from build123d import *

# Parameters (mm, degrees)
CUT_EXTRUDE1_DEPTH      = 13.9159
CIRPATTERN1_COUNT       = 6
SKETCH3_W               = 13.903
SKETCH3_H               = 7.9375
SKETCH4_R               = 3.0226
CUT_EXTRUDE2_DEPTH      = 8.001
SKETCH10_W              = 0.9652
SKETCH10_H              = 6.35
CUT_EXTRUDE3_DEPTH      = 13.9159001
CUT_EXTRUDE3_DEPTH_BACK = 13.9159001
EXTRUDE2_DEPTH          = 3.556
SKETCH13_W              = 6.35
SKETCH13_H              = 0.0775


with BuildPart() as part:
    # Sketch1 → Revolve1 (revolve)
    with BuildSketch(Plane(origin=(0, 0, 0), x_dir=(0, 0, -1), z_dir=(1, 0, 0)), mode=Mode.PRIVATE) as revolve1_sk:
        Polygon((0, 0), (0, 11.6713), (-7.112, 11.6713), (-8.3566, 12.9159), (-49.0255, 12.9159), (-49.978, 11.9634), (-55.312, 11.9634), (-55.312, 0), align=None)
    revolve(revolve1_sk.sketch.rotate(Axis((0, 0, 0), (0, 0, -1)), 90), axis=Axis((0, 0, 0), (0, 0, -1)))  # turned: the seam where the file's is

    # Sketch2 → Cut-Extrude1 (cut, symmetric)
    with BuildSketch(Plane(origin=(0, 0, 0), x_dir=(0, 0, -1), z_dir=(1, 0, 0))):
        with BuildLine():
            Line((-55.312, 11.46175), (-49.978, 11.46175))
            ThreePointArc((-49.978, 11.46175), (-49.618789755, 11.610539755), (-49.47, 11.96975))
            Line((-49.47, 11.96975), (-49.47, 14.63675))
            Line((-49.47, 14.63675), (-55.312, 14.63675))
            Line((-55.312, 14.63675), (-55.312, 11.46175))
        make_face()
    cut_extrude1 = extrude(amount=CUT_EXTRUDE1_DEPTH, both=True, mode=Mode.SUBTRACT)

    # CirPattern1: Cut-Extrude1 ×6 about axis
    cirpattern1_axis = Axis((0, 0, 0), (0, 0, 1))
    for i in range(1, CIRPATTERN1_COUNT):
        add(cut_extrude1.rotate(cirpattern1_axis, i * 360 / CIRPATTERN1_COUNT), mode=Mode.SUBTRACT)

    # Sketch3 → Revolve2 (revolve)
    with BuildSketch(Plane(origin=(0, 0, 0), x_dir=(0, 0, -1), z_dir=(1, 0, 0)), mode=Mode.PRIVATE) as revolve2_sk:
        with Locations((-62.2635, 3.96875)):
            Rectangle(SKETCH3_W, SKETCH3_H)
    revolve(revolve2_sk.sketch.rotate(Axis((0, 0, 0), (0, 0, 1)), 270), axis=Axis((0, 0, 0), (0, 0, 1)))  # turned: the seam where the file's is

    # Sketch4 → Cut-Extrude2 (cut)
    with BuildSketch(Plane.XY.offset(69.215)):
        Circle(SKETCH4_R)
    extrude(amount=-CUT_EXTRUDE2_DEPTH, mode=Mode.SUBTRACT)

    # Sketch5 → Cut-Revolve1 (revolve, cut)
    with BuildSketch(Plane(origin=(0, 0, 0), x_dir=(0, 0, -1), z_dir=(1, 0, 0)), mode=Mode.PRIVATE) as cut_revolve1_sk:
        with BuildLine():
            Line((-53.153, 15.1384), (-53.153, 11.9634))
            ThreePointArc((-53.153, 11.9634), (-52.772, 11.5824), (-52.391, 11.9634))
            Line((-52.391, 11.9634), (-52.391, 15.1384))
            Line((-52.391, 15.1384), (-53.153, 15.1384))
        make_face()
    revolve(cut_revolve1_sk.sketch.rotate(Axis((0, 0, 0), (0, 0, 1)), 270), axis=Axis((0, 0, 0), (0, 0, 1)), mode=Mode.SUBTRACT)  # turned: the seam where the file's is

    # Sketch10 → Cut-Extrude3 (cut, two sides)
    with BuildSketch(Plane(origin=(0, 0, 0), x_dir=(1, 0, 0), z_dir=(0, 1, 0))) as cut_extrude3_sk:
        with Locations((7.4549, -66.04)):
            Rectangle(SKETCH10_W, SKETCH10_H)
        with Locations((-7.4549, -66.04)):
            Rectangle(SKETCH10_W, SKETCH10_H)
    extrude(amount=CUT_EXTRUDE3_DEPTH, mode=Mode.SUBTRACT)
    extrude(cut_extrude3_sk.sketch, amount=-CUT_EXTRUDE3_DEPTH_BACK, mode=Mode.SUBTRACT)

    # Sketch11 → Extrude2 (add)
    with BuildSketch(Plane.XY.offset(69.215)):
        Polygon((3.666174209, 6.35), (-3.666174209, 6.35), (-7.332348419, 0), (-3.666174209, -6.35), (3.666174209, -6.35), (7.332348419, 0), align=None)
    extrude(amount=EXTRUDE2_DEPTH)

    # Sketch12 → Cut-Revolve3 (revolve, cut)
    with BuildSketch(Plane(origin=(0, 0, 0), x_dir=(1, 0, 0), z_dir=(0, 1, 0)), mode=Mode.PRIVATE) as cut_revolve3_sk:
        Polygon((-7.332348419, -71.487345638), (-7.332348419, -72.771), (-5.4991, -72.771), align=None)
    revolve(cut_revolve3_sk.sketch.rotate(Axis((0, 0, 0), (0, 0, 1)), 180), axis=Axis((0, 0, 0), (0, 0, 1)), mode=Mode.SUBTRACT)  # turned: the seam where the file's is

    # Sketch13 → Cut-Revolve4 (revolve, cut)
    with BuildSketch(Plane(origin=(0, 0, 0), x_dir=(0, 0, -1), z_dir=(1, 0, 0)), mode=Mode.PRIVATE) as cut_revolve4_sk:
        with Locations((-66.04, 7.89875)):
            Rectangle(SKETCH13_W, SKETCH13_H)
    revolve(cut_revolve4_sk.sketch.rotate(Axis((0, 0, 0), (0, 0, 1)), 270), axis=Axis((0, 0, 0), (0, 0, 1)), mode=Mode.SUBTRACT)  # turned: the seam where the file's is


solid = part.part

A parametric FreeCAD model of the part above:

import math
import FreeCAD as App
import Part
import Sketcher

V = App.Vector
Q = App.Units.Quantity


def add_polygon(sketch, points):
    """Adds a closed chain of lines whose ends are joined by coincident constraints."""
    first, n = sketch.GeometryCount, len(points)
    for a, b in zip(points, points[1:] + points[:1]):
        sketch.addGeometry(Part.LineSegment(App.Vector(*a, 0), App.Vector(*b, 0)), False)
    for i in range(n):
        sketch.addConstraint(Sketcher.Constraint("Coincident", first + i, 2, first + (i + 1) % n, 1))

doc = App.newDocument("Part")
body = doc.addObject("PartDesign::Body", "Body")

# Sketch on YZ plane
sketch1 = body.newObject("Sketcher::SketchObject", "Sketch")
sketch1.AttachmentSupport = (doc.getObject("YZ_Plane"), [""])
sketch1.MapMode = "FlatFace"
add_polygon(sketch1, [(0, 0), (11.7, 0), (11.7, 7.1), (12.9, 8.4), (12.9, 49), (12, 50), (12, 55.3), (0, 55.3)])  # lines 0-7
sketch1.addConstraint([
    Sketcher.Constraint("Horizontal", 0),
    Sketcher.Constraint("Vertical", 1),
    Sketcher.Constraint("Vertical", 3),
    Sketcher.Constraint("Vertical", 5),
    Sketcher.Constraint("Horizontal", 6),
    Sketcher.Constraint("Vertical", 7),
    Sketcher.Constraint("Coincident", 7, 2, -1, 1),
    Sketcher.Constraint("Perpendicular", 2, 4),
    Sketcher.Constraint("Angle", 2, Q("45 deg")),
    Sketcher.Constraint("DistanceY", 1, 1, 1, 2, Q("0.28 in")),
    Sketcher.Constraint("DistanceY", 5, 1, 5, 2, Q("0.21 in")),
    Sketcher.Constraint("DistanceX", 6, 2, 6, 1, Q("0.471 in")),
    Sketcher.Constraint("DistanceX", 0, 1, 0, 2, Q("0.4595 in")),
    Sketcher.Constraint("DistanceY", -1, 1, 2, 2, Q("0.329 in")),
    Sketcher.Constraint("DistanceY", 3, 1, 3, 2, Q("40.6689 mm")),
])
revolution = body.newObject("PartDesign::Revolution", "Revolution")
revolution.Profile = sketch1
revolution.ReferenceAxis = (sketch1, ["V_Axis"])
revolution.Angle = 360

# Sketch on YZ plane
sketch2 = body.newObject("Sketcher::SketchObject", "Sketch001")
sketch2.AttachmentSupport = (doc.getObject("YZ_Plane"), [""])
sketch2.MapMode = "FlatFace"
sketch2.addGeometry([
    Part.LineSegment(V(11.5, 55.3, 0), V(11.5, 50, 0)),  # 0
    Part.ArcOfCircle(Part.Circle(V(12, 50, 0), V(0, 0, 1), 0.5), math.radians(180), math.radians(270)),  # 1
    Part.LineSegment(V(12, 49.5, 0), V(14.6, 49.5, 0)),  # 2
    Part.LineSegment(V(14.6, 49.5, 0), V(14.6, 55.3, 0)),  # 3
    Part.LineSegment(V(14.6, 55.3, 0), V(11.5, 55.3, 0)),  # 4
], False)
sketch2.addConstraint([
    Sketcher.Constraint("Tangent", 0, 2, 1, 1),
    Sketcher.Constraint("Tangent", 1, 2, 2, 1),
    Sketcher.Constraint("Coincident", 2, 2, 3, 1),
    Sketcher.Constraint("Coincident", 3, 2, 4, 1),
    Sketcher.Constraint("Coincident", 4, 2, 0, 1),
    Sketcher.Constraint("Vertical", 0),
    Sketcher.Constraint("Horizontal", 2),
    Sketcher.Constraint("Vertical", 3),
    Sketcher.Constraint("Horizontal", 4),
    Sketcher.Constraint("Radius", 1, Q("0.02 in")),
    Sketcher.Constraint("DistanceY", 0, 2, 0, 1, Q("0.21 in")),
    Sketcher.Constraint("DistanceX", 2, 1, 2, 2, Q("0.105 in")),
    Sketcher.Constraint("DistanceY", -1, 1, 1, 3, Q("49.978 mm")),
    Sketcher.Constraint("DistanceX", -1, 1, 1, 3, Q("11.96975 mm")),
])
pocket1 = body.newObject("PartDesign::Pocket", "Pocket")
pocket1.Profile = sketch2
pocket1.Length = 27.8318
pocket1.Midplane = True
doc.recompute()

polarpattern = body.newObject("PartDesign::PolarPattern", "PolarPattern")
polarpattern.Originals = [pocket1]
polarpattern.Axis = (doc.getObject("Z_Axis"), [""])
polarpattern.Angle = 360
polarpattern.Occurrences = 6
body.Tip = polarpattern

# Sketch on YZ plane
sketch3 = body.newObject("Sketcher::SketchObject", "Sketch002")
sketch3.AttachmentSupport = (doc.getObject("YZ_Plane"), [""])
sketch3.MapMode = "FlatFace"
add_polygon(sketch3, [(8, 69), (0, 69), (0, 55), (8, 55)])  # lines 0-3
sketch3.addConstraint([
    Sketcher.Constraint("Horizontal", 0),
    Sketcher.Constraint("Vertical", 1),
    Sketcher.Constraint("Horizontal", 2),
    Sketcher.Constraint("Vertical", 3),
    Sketcher.Constraint("PointOnObject", 0, 2, -2),
    Sketcher.Constraint("DistanceX", 0, 2, 0, 1, Q("0.3125 in")),
    Sketcher.Constraint("DistanceY", -1, 1, 0, 2, Q("2.725 in")),
    Sketcher.Constraint("DistanceY", 1, 2, 1, 1, Q("13.903 mm")),
])
revolution2 = body.newObject("PartDesign::Revolution", "Revolution001")
revolution2.Profile = sketch3
revolution2.ReferenceAxis = (sketch3, ["V_Axis"])
revolution2.Angle = 360

# Sketch on XY plane
sketch4 = body.newObject("Sketcher::SketchObject", "Sketch003")
sketch4.AttachmentSupport = (doc.getObject("XY_Plane"), [""])
sketch4.MapMode = "FlatFace"
sketch4.AttachmentOffset = App.Placement(V(0, 0, 2.725 * 25.4), App.Rotation())
sketch4.addGeometry(Part.Circle(V(0, 0, 0), V(0, 0, 1), 3), False)
sketch4.addConstraint([
    Sketcher.Constraint("Coincident", 0, 3, -1, 1),
    Sketcher.Constraint("Diameter", 0, Q("0.238 in")),
])
pocket2 = body.newObject("PartDesign::Pocket", "Pocket001")
pocket2.Profile = sketch4
pocket2.Length = Q("0.315 in")

# Sketch on YZ plane
sketch5 = body.newObject("Sketcher::SketchObject", "Sketch004")
sketch5.AttachmentSupport = (doc.getObject("YZ_Plane"), [""])
sketch5.MapMode = "FlatFace"
sketch5.addGeometry([
    Part.LineSegment(V(15.14, 53.15, 0), V(11.96, 53.15, 0)),
    Part.ArcOfCircle(Part.Circle(V(11.96, 52.77, 0), V(0, 0, 1), 0.38), math.radians(90), math.radians(270)),
    Part.LineSegment(V(11.96, 52.39, 0), V(15.14, 52.39, 0)),
    Part.LineSegment(V(15.14, 52.39, 0), V(15.14, 53.15, 0)),
], False)
sketch5.addConstraint([
    Sketcher.Constraint("Tangent", 0, 2, 1, 1),
    Sketcher.Constraint("Tangent", 1, 2, 2, 1),
    Sketcher.Constraint("Coincident", 2, 2, 3, 1),
    Sketcher.Constraint("Coincident", 3, 2, 0, 1),
    Sketcher.Constraint("Horizontal", 0),
    Sketcher.Constraint("Horizontal", 2),
    Sketcher.Constraint("Vertical", 3),
    Sketcher.Constraint("Radius", 1, Q("0.015 in")),
    Sketcher.Constraint("DistanceX", 0, 2, 0, 1, Q("0.125 in")),
    Sketcher.Constraint("DistanceX", -1, 1, 1, 3, Q("0.471 in")),
    Sketcher.Constraint("DistanceY", -1, 1, 1, 3, Q("52.772 mm")),
])
groove = body.newObject("PartDesign::Groove", "Groove")
groove.Profile = sketch5
groove.ReferenceAxis = (sketch5, ["V_Axis"])
groove.Angle = 360

# Sketch on XZ plane
sketch6 = body.newObject("Sketcher::SketchObject", "Sketch005")
sketch6.AttachmentSupport = (doc.getObject("XZ_Plane"), [""])
sketch6.MapMode = "FlatFace"
add_polygon(sketch6, [(7, 62.9), (7, 69.2), (7.9, 69.2), (7.9, 62.9)])  # lines 0-3
add_polygon(sketch6, [(-7.9, 62.9), (-7.9, 69.2), (-7, 69.2), (-7, 62.9)])  # lines 4-7
sketch6.addConstraint([
    Sketcher.Constraint("Vertical", 0),
    Sketcher.Constraint("Horizontal", 1),
    Sketcher.Constraint("Vertical", 2),
    Sketcher.Constraint("Horizontal", 3),
    Sketcher.Constraint("Vertical", 4),
    Sketcher.Constraint("Horizontal", 5),
    Sketcher.Constraint("Vertical", 6),
    Sketcher.Constraint("Horizontal", 7),
    Sketcher.Constraint("Symmetric", 1, 2, 4, 2, -2),
    Sketcher.Constraint("Symmetric", 3, 2, 6, 2, -2),
    Sketcher.Constraint("DistanceY", 0, 1, 0, 2, Q("0.25 in")),
    Sketcher.Constraint("DistanceX", 1, 1, 1, 2, Q("0.038 in")),
    Sketcher.Constraint("DistanceY", -1, 1, 0, 2, Q("2.725 in")),
    Sketcher.Constraint("DistanceX", -1, 1, 1, 2, Q("0.3125 in")),
])
pocket3 = body.newObject("PartDesign::Pocket", "Pocket002")
pocket3.Profile = sketch6
pocket3.Type = "ThroughAll"
pocket3.Midplane = True

# Sketch on XY plane
sketch7 = body.newObject("Sketcher::SketchObject", "Sketch006")
sketch7.AttachmentSupport = (doc.getObject("XY_Plane"), [""])
sketch7.MapMode = "FlatFace"
sketch7.AttachmentOffset = App.Placement(V(0, 0, 2.725 * 25.4), App.Rotation())
add_polygon(sketch7, [(4, 6), (-4, 6), (-7, 0), (-4, -6), (4, -6), (7, 0)])  # lines 0-5
sketch7.addConstraint([
    Sketcher.Constraint("Horizontal", 0),
    Sketcher.Constraint("Horizontal", 3),
    Sketcher.Constraint("Symmetric", 0, 2, 3, 2, -1, 1),
    Sketcher.Constraint("Symmetric", 1, 2, 4, 2, -1, 1),
    Sketcher.Constraint("PointOnObject", 1, 2, -1),
    Sketcher.Constraint("Parallel", 2, 5),
    Sketcher.Constraint("Vertical", 0, 2, 2, 2),
    Sketcher.Constraint("Angle", 1, Q("-120 deg")),
    Sketcher.Constraint("DistanceY", 2, 2, 0, 2, Q("0.5 in")),
    Sketcher.Constraint("DistanceX", 0, 2, 0, 1, Q("7.332348 mm")),
])
pad1 = body.newObject("PartDesign::Pad", "Pad")
pad1.Profile = sketch7
pad1.Length = Q("0.14 in")

# Sketch on XZ plane
sketch8 = body.newObject("Sketcher::SketchObject", "Sketch007")
sketch8.AttachmentSupport = (doc.getObject("XZ_Plane"), [""])
sketch8.MapMode = "FlatFace"
add_polygon(sketch8, [(-7.3, 71.5), (-7.3, 72.8), (-5.5, 72.8)])  # lines 0-2
sketch8.addConstraint([
    Sketcher.Constraint("Vertical", 0),
    Sketcher.Constraint("Horizontal", 1),
    Sketcher.Constraint("Angle", 2, Q("-145 deg")),
    Sketcher.Constraint("DistanceY", -1, 1, 0, 2, Q("2.865 in")),
    Sketcher.Constraint("DistanceX", 1, 2, -1, 1, Q("0.2165 in")),
    Sketcher.Constraint("DistanceX", 1, 1, 1, 2, Q("1.833248 mm")),
])
groove2 = body.newObject("PartDesign::Groove", "Groove001")
groove2.Profile = sketch8
groove2.ReferenceAxis = (sketch8, ["V_Axis"])
groove2.Angle = 360

# Sketch on YZ plane
sketch9 = body.newObject("Sketcher::SketchObject", "Sketch008")
sketch9.AttachmentSupport = (doc.getObject("YZ_Plane"), [""])
sketch9.MapMode = "FlatFace"
add_polygon(sketch9, [(7.94, 69.22), (7.86, 69.22), (7.86, 62.87), (7.94, 62.87)])  # lines 0-3
sketch9.addConstraint([
    Sketcher.Constraint("Horizontal", 0),
    Sketcher.Constraint("Vertical", 1),
    Sketcher.Constraint("Horizontal", 2),
    Sketcher.Constraint("Vertical", 3),
    Sketcher.Constraint("DistanceY", 1, 2, 1, 1, Q("0.25 in")),
    Sketcher.Constraint("DistanceY", -1, 1, 0, 2, Q("2.725 in")),
    Sketcher.Constraint("DistanceX", -1, 1, 2, 2, Q("0.3125 in")),
    Sketcher.Constraint("DistanceX", 0, 2, 0, 1, Q("0.0775 mm")),
])
groove3 = body.newObject("PartDesign::Groove", "Groove002")
groove3.Profile = sketch9
groove3.ReferenceAxis = (sketch9, ["V_Axis"])
groove3.Angle = 360

doc.recompute()
